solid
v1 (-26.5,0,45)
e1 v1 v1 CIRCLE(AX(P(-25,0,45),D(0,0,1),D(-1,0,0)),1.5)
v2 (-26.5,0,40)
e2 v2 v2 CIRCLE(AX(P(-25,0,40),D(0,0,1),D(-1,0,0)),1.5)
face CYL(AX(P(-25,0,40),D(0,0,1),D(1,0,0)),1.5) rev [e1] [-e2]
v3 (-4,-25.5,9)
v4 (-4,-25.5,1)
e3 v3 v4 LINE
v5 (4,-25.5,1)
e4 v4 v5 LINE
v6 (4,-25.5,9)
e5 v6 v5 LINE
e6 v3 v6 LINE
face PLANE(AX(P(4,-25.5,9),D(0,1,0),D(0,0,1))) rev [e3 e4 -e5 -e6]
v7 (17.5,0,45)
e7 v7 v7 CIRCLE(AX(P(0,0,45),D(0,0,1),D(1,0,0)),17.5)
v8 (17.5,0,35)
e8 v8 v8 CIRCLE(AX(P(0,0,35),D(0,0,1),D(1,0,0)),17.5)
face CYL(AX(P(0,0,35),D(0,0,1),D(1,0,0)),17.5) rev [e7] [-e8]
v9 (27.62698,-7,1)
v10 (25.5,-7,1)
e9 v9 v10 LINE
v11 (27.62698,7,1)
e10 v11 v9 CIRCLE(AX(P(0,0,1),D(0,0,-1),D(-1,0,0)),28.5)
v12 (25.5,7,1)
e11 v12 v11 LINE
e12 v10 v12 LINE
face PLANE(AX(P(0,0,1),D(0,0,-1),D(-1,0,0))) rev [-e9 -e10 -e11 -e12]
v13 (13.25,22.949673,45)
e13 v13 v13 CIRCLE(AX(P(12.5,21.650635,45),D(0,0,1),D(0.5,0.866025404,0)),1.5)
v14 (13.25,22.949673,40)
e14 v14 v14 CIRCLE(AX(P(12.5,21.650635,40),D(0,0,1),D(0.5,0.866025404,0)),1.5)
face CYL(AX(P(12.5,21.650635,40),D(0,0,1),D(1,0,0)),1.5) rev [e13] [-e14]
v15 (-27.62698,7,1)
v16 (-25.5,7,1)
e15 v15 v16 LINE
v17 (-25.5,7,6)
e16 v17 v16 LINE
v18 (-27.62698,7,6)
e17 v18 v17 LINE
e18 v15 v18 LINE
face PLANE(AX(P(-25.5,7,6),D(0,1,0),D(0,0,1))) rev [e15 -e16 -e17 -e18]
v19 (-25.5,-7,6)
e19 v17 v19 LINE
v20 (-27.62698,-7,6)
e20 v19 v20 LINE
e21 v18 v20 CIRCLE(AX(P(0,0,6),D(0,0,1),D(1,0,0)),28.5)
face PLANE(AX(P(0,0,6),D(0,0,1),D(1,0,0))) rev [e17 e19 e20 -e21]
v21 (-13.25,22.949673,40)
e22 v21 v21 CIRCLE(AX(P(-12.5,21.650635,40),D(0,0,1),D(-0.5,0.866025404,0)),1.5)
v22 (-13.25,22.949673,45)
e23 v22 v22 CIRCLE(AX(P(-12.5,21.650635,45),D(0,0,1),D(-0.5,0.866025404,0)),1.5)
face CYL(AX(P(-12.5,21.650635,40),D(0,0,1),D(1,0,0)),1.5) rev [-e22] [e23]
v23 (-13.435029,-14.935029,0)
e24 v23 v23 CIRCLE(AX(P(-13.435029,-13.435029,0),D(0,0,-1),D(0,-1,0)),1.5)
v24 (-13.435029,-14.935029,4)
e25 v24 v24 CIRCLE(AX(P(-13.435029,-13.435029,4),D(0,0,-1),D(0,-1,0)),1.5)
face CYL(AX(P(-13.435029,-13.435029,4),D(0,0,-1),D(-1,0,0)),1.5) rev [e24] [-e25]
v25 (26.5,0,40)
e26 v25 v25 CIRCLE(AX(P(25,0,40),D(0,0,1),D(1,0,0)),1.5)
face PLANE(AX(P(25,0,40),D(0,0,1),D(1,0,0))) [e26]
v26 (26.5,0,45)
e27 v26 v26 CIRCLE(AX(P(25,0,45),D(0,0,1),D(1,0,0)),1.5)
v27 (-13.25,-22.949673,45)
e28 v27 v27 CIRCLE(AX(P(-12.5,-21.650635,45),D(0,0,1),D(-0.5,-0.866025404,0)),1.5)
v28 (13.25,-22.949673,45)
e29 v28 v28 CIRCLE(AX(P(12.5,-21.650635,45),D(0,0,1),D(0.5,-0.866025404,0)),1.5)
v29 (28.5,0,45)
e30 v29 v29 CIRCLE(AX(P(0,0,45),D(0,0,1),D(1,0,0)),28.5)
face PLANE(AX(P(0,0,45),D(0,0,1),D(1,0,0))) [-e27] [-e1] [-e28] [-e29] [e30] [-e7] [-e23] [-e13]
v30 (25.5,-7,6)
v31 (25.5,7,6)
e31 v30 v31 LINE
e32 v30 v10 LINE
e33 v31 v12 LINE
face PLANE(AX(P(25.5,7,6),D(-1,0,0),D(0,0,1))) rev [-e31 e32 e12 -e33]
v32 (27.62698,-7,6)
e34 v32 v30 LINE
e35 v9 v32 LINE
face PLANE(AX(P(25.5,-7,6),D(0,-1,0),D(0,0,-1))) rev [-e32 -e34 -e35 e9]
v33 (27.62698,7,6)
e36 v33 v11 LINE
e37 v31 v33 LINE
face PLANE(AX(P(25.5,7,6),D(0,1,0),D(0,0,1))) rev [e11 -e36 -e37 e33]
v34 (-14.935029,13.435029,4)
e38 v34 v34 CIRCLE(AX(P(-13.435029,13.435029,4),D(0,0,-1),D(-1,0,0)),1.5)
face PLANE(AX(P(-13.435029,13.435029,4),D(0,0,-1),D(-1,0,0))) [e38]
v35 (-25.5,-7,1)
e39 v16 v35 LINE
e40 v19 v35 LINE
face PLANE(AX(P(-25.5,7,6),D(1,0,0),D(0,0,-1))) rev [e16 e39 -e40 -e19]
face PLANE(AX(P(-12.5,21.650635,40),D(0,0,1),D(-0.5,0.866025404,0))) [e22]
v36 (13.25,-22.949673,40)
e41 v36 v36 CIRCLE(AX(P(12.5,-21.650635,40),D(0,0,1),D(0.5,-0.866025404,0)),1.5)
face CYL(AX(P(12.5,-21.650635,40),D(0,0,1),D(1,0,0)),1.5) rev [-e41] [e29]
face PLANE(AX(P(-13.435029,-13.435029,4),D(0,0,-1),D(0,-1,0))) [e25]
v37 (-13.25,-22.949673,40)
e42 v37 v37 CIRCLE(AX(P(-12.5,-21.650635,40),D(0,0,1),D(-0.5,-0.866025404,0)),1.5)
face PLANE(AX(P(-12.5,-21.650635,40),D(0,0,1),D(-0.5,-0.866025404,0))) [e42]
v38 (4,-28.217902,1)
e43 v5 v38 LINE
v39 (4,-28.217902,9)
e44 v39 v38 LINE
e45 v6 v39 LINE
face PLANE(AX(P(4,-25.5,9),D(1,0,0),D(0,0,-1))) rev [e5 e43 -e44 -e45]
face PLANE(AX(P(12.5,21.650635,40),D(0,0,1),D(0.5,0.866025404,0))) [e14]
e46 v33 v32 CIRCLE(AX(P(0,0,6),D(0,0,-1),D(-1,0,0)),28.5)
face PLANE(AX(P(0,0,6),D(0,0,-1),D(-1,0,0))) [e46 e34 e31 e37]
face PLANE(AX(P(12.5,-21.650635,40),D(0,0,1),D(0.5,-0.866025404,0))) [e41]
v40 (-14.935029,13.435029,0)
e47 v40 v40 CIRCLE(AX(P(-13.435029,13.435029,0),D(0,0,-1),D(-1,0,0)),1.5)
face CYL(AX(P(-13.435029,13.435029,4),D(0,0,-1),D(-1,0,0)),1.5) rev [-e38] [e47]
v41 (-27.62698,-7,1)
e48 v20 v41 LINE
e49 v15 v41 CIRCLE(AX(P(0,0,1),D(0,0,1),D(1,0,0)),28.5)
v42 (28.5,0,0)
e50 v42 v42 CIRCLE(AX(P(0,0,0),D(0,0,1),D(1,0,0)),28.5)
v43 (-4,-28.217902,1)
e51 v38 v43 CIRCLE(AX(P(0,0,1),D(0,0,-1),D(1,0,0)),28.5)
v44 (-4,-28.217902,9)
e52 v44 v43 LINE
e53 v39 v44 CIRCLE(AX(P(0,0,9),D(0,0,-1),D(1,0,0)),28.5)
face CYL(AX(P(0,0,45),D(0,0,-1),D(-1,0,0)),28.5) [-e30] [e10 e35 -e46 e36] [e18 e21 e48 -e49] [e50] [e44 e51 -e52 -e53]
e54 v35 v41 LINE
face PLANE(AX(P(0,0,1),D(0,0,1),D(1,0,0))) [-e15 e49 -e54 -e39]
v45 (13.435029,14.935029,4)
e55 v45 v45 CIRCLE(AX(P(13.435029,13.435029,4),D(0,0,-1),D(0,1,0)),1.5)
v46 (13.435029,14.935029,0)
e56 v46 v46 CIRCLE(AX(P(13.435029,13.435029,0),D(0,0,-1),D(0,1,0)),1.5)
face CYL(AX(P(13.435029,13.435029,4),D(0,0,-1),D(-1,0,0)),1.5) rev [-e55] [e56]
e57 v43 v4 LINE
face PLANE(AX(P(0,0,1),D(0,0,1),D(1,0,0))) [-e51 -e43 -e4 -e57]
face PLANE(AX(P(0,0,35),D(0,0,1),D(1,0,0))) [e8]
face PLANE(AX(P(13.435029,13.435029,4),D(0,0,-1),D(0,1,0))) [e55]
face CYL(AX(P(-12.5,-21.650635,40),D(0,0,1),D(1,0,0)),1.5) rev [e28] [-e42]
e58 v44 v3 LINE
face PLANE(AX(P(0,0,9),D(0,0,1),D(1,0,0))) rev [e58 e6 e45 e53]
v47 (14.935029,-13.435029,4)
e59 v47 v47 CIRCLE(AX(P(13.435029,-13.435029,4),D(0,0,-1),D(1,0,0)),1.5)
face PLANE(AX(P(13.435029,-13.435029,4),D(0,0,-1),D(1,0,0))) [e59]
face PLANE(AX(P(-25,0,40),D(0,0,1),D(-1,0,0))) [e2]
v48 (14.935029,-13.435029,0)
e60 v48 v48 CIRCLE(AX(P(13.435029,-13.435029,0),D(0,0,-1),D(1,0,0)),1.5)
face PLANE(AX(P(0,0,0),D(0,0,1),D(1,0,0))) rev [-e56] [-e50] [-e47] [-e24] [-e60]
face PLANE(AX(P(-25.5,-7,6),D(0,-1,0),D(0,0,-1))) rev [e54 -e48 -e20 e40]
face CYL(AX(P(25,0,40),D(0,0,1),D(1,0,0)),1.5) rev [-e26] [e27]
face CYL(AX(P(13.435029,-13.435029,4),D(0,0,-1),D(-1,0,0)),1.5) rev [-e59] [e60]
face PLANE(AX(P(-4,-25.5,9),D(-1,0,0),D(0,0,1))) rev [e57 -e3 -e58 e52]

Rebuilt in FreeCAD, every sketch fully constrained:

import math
import FreeCAD as App
import Part
import Sketcher

V = App.Vector
Q = App.Units.Quantity

doc = App.newDocument("Part")
body = doc.addObject("PartDesign::Body", "Body")

# Sketch on XY plane
sketch1 = doc.addObject("Sketcher::SketchObject", "Sketch")
body.addObject(sketch1)
sketch1.AttachmentSupport = (doc.XY_Plane, [""])
sketch1.MapMode = "FlatFace"
sketch1.addGeometry(Part.Circle(V(0, 0, 0), V(0, 0, 1), 28.5), False)
sketch1.addConstraint([
    Sketcher.Constraint("Coincident", 0, 3, -1, 1),
    Sketcher.Constraint("Diameter", 0, Q("57 mm")),
])
pad1 = doc.addObject("PartDesign::Pad", "Pad")
body.addObject(pad1)
pad1.Profile = sketch1
pad1.Length = 45

# Sketch on XY plane
sketch2 = doc.addObject("Sketcher::SketchObject", "Sketch001")
body.addObject(sketch2)
sketch2.AttachmentSupport = (doc.XY_Plane, [""])
sketch2.MapMode = "FlatFace"
sketch2.AttachmentOffset = App.Placement(V(0, 0, 45), App.Rotation())
sketch2.addGeometry(Part.Circle(V(25, 0, 0), V(0, 0, 1), 1.5), False)
sketch2.addConstraint([
    Sketcher.Constraint("PointOnObject", 0, 3, -1),
    Sketcher.Constraint("Diameter", 0, Q("3 mm")),
    Sketcher.Constraint("DistanceX", -1, 1, 0, 3, Q("25 mm")),
])
pocket1 = doc.addObject("PartDesign::Pocket", "Pocket")
body.addObject(pocket1)
pocket1.Profile = sketch2
pocket1.Length = 5
doc.recompute()

polarpattern = doc.addObject("PartDesign::PolarPattern", "PolarPattern")
body.addObject(polarpattern)
polarpattern.Originals = [pocket1]
polarpattern.Axis = (doc.Z_Axis, [""])
polarpattern.Angle = 360
polarpattern.Occurrences = 6
body.Tip = polarpattern

# Sketch on XY plane
sketch3 = doc.addObject("Sketcher::SketchObject", "Sketch002")
body.addObject(sketch3)
sketch3.AttachmentSupport = (doc.XY_Plane, [""])
sketch3.MapMode = "FlatFace"
sketch3.AttachmentOffset = App.Placement(V(0, 0, 45), App.Rotation())
sketch3.addGeometry(Part.Circle(V(0, 0, 0), V(0, 0, 1), 17.5), False)
sketch3.addConstraint([
    Sketcher.Constraint("Coincident", 0, 3, -1, 1),
    Sketcher.Constraint("Diameter", 0, Q("35 mm")),
])
pocket2 = doc.addObject("PartDesign::Pocket", "Pocket001")
body.addObject(pocket2)
pocket2.Profile = sketch3
pocket2.Length = 10

# Sketch on XY plane
sketch4 = doc.addObject("Sketcher::SketchObject", "Sketch003")
body.addObject(sketch4)
sketch4.AttachmentSupport = (doc.XY_Plane, [""])
sketch4.MapMode = "FlatFace"
sketch4.AttachmentOffset = App.Placement(V(0, 0, 1), App.Rotation())
sketch4.addGeometry([
    Part.LineSegment(V(27.68972, -7, 0), V(25.5, -7, 0)),  # 0
    Part.LineSegment(V(25.5, -7, 0), V(25.5, 7, 0)),  # 1
    Part.LineSegment(V(25.5, 7, 0), V(27.68972, 7, 0)),  # 2
    Part.ArcOfCircle(Part.Circle(V(0, 0, 0), V(0, 0, 1), 28.560822), math.radians(-14.18721), math.radians(14.18721)),  # 3
    Part.LineSegment(V(-27.68972, 7, 0), V(-25.5, 7, 0)),  # 4
    Part.LineSegment(V(-25.5, 7, 0), V(-25.5, -7, 0)),  # 5
    Part.LineSegment(V(-25.5, -7, 0), V(-27.68972, -7, 0)),  # 6
    Part.ArcOfCircle(Part.Circle(V(0, 0, 0), V(0, 0, 1), 28.560822), math.radians(165.81279), math.radians(194.18721)),  # 7
], False)
sketch4.addConstraint([
    Sketcher.Constraint("Coincident", 0, 2, 1, 1),
    Sketcher.Constraint("Coincident", 1, 2, 2, 1),
    Sketcher.Constraint("Coincident", 2, 2, 3, 2),
    Sketcher.Constraint("Coincident", 3, 1, 0, 1),
    Sketcher.Constraint("Coincident", 4, 2, 5, 1),
    Sketcher.Constraint("Coincident", 5, 2, 6, 1),
    Sketcher.Constraint("Coincident", 6, 2, 7, 2),
    Sketcher.Constraint("Coincident", 7, 1, 4, 1),
    Sketcher.Constraint("Horizontal", 0),
    Sketcher.Constraint("Vertical", 1),
    Sketcher.Constraint("Horizontal", 2),
    Sketcher.Constraint("Horizontal", 4),
    Sketcher.Constraint("Vertical", 5),
    Sketcher.Constraint("Horizontal", 6),
    Sketcher.Constraint("Coincident", 3, 3, -1, 1),
    Sketcher.Constraint("Coincident", 7, 3, -1, 1),
    Sketcher.Constraint("Equal", 3, 7),
    Sketcher.Constraint("Symmetric", 0, 2, 4, 2, -1, 1),
    Sketcher.Constraint("Horizontal", 2, 2, 4, 2),
    Sketcher.Constraint("Horizontal", 3, 1, 5, 2),
    Sketcher.Constraint("DistanceY", 1, 1, 1, 2, Q("14 mm")),
    Sketcher.Constraint("DistanceX", 4, 2, 1, 2, Q("51 mm")),
    Sketcher.Constraint("Radius", 3, Q("28.560822 mm")),
])
pocket3 = doc.addObject("PartDesign::Pocket", "Pocket002")
body.addObject(pocket3)
pocket3.Profile = sketch4
pocket3.Length = 5
pocket3.Reversed = True

# Sketch on XY plane
sketch5 = doc.addObject("Sketcher::SketchObject", "Sketch004")
body.addObject(sketch5)
sketch5.AttachmentSupport = (doc.XY_Plane, [""])
sketch5.MapMode = "FlatFace"
sketch5.AttachmentOffset = App.Placement(V(0, 0, 1), App.Rotation())
sketch5.addGeometry([
    Part.LineSegment(V(-4, -25.5, 0), V(4, -25.5, 0)),
    Part.LineSegment(V(4, -25.5, 0), V(4, -28.217902, 0)),
    Part.ArcOfCircle(Part.Circle(V(0, 0, 0), V(0, 0, 1), 28.5), math.radians(-98.068151), math.radians(-81.931849)),
    Part.LineSegment(V(-4, -28.217902, 0), V(-4, -25.5, 0)),
], False)
sketch5.addConstraint([
    Sketcher.Constraint("Coincident", 0, 2, 1, 1),
    Sketcher.Constraint("Coincident", 1, 2, 2, 2),
    Sketcher.Constraint("Coincident", 2, 1, 3, 1),
    Sketcher.Constraint("Coincident", 3, 2, 0, 1),
    Sketcher.Constraint("Horizontal", 0),
    Sketcher.Constraint("Vertical", 1),
    Sketcher.Constraint("Vertical", 3),
    Sketcher.Constraint("Coincident", 2, 3, -1, 1),
    Sketcher.Constraint("Horizontal", 1, 2, 2, 1),
    Sketcher.Constraint("Radius", 2, Q("28.5 mm")),
    Sketcher.Constraint("DistanceX", 0, 1, 0, 2, Q("8 mm")),
    Sketcher.Constraint("DistanceY", 0, 2, -1, 1, Q("25.5 mm")),
])
pocket4 = doc.addObject("PartDesign::Pocket", "Pocket003")
body.addObject(pocket4)
pocket4.Profile = sketch5
pocket4.Length = 8
pocket4.Reversed = True

# Sketch on XY plane
sketch6 = doc.addObject("Sketcher::SketchObject", "Sketch005")
body.addObject(sketch6)
sketch6.AttachmentSupport = (doc.XY_Plane, [""])
sketch6.MapMode = "FlatFace"
sketch6.addGeometry(Part.Circle(V(-13.435029, 13.435029, 0), V(0, 0, 1), 1.5), False)
sketch6.addConstraint([
    Sketcher.Constraint("Diameter", 0, Q("3 mm")),
    Sketcher.Constraint("DistanceX", 0, 3, -1, 1, Q("13.435029 mm")),
    Sketcher.Constraint("DistanceY", -1, 1, 0, 3, Q("13.435029 mm")),
])
pocket5 = doc.addObject("PartDesign::Pocket", "Pocket004")
body.addObject(pocket5)
pocket5.Profile = sketch6
pocket5.Length = 4
pocket5.Reversed = True
doc.recompute()

polarpattern2 = doc.addObject("PartDesign::PolarPattern", "PolarPattern001")
body.addObject(polarpattern2)
polarpattern2.Originals = [pocket5]
polarpattern2.Axis = (doc.Z_Axis, [""])
polarpattern2.Angle = 360
polarpattern2.Occurrences = 4
body.Tip = polarpattern2

doc.recompute()
